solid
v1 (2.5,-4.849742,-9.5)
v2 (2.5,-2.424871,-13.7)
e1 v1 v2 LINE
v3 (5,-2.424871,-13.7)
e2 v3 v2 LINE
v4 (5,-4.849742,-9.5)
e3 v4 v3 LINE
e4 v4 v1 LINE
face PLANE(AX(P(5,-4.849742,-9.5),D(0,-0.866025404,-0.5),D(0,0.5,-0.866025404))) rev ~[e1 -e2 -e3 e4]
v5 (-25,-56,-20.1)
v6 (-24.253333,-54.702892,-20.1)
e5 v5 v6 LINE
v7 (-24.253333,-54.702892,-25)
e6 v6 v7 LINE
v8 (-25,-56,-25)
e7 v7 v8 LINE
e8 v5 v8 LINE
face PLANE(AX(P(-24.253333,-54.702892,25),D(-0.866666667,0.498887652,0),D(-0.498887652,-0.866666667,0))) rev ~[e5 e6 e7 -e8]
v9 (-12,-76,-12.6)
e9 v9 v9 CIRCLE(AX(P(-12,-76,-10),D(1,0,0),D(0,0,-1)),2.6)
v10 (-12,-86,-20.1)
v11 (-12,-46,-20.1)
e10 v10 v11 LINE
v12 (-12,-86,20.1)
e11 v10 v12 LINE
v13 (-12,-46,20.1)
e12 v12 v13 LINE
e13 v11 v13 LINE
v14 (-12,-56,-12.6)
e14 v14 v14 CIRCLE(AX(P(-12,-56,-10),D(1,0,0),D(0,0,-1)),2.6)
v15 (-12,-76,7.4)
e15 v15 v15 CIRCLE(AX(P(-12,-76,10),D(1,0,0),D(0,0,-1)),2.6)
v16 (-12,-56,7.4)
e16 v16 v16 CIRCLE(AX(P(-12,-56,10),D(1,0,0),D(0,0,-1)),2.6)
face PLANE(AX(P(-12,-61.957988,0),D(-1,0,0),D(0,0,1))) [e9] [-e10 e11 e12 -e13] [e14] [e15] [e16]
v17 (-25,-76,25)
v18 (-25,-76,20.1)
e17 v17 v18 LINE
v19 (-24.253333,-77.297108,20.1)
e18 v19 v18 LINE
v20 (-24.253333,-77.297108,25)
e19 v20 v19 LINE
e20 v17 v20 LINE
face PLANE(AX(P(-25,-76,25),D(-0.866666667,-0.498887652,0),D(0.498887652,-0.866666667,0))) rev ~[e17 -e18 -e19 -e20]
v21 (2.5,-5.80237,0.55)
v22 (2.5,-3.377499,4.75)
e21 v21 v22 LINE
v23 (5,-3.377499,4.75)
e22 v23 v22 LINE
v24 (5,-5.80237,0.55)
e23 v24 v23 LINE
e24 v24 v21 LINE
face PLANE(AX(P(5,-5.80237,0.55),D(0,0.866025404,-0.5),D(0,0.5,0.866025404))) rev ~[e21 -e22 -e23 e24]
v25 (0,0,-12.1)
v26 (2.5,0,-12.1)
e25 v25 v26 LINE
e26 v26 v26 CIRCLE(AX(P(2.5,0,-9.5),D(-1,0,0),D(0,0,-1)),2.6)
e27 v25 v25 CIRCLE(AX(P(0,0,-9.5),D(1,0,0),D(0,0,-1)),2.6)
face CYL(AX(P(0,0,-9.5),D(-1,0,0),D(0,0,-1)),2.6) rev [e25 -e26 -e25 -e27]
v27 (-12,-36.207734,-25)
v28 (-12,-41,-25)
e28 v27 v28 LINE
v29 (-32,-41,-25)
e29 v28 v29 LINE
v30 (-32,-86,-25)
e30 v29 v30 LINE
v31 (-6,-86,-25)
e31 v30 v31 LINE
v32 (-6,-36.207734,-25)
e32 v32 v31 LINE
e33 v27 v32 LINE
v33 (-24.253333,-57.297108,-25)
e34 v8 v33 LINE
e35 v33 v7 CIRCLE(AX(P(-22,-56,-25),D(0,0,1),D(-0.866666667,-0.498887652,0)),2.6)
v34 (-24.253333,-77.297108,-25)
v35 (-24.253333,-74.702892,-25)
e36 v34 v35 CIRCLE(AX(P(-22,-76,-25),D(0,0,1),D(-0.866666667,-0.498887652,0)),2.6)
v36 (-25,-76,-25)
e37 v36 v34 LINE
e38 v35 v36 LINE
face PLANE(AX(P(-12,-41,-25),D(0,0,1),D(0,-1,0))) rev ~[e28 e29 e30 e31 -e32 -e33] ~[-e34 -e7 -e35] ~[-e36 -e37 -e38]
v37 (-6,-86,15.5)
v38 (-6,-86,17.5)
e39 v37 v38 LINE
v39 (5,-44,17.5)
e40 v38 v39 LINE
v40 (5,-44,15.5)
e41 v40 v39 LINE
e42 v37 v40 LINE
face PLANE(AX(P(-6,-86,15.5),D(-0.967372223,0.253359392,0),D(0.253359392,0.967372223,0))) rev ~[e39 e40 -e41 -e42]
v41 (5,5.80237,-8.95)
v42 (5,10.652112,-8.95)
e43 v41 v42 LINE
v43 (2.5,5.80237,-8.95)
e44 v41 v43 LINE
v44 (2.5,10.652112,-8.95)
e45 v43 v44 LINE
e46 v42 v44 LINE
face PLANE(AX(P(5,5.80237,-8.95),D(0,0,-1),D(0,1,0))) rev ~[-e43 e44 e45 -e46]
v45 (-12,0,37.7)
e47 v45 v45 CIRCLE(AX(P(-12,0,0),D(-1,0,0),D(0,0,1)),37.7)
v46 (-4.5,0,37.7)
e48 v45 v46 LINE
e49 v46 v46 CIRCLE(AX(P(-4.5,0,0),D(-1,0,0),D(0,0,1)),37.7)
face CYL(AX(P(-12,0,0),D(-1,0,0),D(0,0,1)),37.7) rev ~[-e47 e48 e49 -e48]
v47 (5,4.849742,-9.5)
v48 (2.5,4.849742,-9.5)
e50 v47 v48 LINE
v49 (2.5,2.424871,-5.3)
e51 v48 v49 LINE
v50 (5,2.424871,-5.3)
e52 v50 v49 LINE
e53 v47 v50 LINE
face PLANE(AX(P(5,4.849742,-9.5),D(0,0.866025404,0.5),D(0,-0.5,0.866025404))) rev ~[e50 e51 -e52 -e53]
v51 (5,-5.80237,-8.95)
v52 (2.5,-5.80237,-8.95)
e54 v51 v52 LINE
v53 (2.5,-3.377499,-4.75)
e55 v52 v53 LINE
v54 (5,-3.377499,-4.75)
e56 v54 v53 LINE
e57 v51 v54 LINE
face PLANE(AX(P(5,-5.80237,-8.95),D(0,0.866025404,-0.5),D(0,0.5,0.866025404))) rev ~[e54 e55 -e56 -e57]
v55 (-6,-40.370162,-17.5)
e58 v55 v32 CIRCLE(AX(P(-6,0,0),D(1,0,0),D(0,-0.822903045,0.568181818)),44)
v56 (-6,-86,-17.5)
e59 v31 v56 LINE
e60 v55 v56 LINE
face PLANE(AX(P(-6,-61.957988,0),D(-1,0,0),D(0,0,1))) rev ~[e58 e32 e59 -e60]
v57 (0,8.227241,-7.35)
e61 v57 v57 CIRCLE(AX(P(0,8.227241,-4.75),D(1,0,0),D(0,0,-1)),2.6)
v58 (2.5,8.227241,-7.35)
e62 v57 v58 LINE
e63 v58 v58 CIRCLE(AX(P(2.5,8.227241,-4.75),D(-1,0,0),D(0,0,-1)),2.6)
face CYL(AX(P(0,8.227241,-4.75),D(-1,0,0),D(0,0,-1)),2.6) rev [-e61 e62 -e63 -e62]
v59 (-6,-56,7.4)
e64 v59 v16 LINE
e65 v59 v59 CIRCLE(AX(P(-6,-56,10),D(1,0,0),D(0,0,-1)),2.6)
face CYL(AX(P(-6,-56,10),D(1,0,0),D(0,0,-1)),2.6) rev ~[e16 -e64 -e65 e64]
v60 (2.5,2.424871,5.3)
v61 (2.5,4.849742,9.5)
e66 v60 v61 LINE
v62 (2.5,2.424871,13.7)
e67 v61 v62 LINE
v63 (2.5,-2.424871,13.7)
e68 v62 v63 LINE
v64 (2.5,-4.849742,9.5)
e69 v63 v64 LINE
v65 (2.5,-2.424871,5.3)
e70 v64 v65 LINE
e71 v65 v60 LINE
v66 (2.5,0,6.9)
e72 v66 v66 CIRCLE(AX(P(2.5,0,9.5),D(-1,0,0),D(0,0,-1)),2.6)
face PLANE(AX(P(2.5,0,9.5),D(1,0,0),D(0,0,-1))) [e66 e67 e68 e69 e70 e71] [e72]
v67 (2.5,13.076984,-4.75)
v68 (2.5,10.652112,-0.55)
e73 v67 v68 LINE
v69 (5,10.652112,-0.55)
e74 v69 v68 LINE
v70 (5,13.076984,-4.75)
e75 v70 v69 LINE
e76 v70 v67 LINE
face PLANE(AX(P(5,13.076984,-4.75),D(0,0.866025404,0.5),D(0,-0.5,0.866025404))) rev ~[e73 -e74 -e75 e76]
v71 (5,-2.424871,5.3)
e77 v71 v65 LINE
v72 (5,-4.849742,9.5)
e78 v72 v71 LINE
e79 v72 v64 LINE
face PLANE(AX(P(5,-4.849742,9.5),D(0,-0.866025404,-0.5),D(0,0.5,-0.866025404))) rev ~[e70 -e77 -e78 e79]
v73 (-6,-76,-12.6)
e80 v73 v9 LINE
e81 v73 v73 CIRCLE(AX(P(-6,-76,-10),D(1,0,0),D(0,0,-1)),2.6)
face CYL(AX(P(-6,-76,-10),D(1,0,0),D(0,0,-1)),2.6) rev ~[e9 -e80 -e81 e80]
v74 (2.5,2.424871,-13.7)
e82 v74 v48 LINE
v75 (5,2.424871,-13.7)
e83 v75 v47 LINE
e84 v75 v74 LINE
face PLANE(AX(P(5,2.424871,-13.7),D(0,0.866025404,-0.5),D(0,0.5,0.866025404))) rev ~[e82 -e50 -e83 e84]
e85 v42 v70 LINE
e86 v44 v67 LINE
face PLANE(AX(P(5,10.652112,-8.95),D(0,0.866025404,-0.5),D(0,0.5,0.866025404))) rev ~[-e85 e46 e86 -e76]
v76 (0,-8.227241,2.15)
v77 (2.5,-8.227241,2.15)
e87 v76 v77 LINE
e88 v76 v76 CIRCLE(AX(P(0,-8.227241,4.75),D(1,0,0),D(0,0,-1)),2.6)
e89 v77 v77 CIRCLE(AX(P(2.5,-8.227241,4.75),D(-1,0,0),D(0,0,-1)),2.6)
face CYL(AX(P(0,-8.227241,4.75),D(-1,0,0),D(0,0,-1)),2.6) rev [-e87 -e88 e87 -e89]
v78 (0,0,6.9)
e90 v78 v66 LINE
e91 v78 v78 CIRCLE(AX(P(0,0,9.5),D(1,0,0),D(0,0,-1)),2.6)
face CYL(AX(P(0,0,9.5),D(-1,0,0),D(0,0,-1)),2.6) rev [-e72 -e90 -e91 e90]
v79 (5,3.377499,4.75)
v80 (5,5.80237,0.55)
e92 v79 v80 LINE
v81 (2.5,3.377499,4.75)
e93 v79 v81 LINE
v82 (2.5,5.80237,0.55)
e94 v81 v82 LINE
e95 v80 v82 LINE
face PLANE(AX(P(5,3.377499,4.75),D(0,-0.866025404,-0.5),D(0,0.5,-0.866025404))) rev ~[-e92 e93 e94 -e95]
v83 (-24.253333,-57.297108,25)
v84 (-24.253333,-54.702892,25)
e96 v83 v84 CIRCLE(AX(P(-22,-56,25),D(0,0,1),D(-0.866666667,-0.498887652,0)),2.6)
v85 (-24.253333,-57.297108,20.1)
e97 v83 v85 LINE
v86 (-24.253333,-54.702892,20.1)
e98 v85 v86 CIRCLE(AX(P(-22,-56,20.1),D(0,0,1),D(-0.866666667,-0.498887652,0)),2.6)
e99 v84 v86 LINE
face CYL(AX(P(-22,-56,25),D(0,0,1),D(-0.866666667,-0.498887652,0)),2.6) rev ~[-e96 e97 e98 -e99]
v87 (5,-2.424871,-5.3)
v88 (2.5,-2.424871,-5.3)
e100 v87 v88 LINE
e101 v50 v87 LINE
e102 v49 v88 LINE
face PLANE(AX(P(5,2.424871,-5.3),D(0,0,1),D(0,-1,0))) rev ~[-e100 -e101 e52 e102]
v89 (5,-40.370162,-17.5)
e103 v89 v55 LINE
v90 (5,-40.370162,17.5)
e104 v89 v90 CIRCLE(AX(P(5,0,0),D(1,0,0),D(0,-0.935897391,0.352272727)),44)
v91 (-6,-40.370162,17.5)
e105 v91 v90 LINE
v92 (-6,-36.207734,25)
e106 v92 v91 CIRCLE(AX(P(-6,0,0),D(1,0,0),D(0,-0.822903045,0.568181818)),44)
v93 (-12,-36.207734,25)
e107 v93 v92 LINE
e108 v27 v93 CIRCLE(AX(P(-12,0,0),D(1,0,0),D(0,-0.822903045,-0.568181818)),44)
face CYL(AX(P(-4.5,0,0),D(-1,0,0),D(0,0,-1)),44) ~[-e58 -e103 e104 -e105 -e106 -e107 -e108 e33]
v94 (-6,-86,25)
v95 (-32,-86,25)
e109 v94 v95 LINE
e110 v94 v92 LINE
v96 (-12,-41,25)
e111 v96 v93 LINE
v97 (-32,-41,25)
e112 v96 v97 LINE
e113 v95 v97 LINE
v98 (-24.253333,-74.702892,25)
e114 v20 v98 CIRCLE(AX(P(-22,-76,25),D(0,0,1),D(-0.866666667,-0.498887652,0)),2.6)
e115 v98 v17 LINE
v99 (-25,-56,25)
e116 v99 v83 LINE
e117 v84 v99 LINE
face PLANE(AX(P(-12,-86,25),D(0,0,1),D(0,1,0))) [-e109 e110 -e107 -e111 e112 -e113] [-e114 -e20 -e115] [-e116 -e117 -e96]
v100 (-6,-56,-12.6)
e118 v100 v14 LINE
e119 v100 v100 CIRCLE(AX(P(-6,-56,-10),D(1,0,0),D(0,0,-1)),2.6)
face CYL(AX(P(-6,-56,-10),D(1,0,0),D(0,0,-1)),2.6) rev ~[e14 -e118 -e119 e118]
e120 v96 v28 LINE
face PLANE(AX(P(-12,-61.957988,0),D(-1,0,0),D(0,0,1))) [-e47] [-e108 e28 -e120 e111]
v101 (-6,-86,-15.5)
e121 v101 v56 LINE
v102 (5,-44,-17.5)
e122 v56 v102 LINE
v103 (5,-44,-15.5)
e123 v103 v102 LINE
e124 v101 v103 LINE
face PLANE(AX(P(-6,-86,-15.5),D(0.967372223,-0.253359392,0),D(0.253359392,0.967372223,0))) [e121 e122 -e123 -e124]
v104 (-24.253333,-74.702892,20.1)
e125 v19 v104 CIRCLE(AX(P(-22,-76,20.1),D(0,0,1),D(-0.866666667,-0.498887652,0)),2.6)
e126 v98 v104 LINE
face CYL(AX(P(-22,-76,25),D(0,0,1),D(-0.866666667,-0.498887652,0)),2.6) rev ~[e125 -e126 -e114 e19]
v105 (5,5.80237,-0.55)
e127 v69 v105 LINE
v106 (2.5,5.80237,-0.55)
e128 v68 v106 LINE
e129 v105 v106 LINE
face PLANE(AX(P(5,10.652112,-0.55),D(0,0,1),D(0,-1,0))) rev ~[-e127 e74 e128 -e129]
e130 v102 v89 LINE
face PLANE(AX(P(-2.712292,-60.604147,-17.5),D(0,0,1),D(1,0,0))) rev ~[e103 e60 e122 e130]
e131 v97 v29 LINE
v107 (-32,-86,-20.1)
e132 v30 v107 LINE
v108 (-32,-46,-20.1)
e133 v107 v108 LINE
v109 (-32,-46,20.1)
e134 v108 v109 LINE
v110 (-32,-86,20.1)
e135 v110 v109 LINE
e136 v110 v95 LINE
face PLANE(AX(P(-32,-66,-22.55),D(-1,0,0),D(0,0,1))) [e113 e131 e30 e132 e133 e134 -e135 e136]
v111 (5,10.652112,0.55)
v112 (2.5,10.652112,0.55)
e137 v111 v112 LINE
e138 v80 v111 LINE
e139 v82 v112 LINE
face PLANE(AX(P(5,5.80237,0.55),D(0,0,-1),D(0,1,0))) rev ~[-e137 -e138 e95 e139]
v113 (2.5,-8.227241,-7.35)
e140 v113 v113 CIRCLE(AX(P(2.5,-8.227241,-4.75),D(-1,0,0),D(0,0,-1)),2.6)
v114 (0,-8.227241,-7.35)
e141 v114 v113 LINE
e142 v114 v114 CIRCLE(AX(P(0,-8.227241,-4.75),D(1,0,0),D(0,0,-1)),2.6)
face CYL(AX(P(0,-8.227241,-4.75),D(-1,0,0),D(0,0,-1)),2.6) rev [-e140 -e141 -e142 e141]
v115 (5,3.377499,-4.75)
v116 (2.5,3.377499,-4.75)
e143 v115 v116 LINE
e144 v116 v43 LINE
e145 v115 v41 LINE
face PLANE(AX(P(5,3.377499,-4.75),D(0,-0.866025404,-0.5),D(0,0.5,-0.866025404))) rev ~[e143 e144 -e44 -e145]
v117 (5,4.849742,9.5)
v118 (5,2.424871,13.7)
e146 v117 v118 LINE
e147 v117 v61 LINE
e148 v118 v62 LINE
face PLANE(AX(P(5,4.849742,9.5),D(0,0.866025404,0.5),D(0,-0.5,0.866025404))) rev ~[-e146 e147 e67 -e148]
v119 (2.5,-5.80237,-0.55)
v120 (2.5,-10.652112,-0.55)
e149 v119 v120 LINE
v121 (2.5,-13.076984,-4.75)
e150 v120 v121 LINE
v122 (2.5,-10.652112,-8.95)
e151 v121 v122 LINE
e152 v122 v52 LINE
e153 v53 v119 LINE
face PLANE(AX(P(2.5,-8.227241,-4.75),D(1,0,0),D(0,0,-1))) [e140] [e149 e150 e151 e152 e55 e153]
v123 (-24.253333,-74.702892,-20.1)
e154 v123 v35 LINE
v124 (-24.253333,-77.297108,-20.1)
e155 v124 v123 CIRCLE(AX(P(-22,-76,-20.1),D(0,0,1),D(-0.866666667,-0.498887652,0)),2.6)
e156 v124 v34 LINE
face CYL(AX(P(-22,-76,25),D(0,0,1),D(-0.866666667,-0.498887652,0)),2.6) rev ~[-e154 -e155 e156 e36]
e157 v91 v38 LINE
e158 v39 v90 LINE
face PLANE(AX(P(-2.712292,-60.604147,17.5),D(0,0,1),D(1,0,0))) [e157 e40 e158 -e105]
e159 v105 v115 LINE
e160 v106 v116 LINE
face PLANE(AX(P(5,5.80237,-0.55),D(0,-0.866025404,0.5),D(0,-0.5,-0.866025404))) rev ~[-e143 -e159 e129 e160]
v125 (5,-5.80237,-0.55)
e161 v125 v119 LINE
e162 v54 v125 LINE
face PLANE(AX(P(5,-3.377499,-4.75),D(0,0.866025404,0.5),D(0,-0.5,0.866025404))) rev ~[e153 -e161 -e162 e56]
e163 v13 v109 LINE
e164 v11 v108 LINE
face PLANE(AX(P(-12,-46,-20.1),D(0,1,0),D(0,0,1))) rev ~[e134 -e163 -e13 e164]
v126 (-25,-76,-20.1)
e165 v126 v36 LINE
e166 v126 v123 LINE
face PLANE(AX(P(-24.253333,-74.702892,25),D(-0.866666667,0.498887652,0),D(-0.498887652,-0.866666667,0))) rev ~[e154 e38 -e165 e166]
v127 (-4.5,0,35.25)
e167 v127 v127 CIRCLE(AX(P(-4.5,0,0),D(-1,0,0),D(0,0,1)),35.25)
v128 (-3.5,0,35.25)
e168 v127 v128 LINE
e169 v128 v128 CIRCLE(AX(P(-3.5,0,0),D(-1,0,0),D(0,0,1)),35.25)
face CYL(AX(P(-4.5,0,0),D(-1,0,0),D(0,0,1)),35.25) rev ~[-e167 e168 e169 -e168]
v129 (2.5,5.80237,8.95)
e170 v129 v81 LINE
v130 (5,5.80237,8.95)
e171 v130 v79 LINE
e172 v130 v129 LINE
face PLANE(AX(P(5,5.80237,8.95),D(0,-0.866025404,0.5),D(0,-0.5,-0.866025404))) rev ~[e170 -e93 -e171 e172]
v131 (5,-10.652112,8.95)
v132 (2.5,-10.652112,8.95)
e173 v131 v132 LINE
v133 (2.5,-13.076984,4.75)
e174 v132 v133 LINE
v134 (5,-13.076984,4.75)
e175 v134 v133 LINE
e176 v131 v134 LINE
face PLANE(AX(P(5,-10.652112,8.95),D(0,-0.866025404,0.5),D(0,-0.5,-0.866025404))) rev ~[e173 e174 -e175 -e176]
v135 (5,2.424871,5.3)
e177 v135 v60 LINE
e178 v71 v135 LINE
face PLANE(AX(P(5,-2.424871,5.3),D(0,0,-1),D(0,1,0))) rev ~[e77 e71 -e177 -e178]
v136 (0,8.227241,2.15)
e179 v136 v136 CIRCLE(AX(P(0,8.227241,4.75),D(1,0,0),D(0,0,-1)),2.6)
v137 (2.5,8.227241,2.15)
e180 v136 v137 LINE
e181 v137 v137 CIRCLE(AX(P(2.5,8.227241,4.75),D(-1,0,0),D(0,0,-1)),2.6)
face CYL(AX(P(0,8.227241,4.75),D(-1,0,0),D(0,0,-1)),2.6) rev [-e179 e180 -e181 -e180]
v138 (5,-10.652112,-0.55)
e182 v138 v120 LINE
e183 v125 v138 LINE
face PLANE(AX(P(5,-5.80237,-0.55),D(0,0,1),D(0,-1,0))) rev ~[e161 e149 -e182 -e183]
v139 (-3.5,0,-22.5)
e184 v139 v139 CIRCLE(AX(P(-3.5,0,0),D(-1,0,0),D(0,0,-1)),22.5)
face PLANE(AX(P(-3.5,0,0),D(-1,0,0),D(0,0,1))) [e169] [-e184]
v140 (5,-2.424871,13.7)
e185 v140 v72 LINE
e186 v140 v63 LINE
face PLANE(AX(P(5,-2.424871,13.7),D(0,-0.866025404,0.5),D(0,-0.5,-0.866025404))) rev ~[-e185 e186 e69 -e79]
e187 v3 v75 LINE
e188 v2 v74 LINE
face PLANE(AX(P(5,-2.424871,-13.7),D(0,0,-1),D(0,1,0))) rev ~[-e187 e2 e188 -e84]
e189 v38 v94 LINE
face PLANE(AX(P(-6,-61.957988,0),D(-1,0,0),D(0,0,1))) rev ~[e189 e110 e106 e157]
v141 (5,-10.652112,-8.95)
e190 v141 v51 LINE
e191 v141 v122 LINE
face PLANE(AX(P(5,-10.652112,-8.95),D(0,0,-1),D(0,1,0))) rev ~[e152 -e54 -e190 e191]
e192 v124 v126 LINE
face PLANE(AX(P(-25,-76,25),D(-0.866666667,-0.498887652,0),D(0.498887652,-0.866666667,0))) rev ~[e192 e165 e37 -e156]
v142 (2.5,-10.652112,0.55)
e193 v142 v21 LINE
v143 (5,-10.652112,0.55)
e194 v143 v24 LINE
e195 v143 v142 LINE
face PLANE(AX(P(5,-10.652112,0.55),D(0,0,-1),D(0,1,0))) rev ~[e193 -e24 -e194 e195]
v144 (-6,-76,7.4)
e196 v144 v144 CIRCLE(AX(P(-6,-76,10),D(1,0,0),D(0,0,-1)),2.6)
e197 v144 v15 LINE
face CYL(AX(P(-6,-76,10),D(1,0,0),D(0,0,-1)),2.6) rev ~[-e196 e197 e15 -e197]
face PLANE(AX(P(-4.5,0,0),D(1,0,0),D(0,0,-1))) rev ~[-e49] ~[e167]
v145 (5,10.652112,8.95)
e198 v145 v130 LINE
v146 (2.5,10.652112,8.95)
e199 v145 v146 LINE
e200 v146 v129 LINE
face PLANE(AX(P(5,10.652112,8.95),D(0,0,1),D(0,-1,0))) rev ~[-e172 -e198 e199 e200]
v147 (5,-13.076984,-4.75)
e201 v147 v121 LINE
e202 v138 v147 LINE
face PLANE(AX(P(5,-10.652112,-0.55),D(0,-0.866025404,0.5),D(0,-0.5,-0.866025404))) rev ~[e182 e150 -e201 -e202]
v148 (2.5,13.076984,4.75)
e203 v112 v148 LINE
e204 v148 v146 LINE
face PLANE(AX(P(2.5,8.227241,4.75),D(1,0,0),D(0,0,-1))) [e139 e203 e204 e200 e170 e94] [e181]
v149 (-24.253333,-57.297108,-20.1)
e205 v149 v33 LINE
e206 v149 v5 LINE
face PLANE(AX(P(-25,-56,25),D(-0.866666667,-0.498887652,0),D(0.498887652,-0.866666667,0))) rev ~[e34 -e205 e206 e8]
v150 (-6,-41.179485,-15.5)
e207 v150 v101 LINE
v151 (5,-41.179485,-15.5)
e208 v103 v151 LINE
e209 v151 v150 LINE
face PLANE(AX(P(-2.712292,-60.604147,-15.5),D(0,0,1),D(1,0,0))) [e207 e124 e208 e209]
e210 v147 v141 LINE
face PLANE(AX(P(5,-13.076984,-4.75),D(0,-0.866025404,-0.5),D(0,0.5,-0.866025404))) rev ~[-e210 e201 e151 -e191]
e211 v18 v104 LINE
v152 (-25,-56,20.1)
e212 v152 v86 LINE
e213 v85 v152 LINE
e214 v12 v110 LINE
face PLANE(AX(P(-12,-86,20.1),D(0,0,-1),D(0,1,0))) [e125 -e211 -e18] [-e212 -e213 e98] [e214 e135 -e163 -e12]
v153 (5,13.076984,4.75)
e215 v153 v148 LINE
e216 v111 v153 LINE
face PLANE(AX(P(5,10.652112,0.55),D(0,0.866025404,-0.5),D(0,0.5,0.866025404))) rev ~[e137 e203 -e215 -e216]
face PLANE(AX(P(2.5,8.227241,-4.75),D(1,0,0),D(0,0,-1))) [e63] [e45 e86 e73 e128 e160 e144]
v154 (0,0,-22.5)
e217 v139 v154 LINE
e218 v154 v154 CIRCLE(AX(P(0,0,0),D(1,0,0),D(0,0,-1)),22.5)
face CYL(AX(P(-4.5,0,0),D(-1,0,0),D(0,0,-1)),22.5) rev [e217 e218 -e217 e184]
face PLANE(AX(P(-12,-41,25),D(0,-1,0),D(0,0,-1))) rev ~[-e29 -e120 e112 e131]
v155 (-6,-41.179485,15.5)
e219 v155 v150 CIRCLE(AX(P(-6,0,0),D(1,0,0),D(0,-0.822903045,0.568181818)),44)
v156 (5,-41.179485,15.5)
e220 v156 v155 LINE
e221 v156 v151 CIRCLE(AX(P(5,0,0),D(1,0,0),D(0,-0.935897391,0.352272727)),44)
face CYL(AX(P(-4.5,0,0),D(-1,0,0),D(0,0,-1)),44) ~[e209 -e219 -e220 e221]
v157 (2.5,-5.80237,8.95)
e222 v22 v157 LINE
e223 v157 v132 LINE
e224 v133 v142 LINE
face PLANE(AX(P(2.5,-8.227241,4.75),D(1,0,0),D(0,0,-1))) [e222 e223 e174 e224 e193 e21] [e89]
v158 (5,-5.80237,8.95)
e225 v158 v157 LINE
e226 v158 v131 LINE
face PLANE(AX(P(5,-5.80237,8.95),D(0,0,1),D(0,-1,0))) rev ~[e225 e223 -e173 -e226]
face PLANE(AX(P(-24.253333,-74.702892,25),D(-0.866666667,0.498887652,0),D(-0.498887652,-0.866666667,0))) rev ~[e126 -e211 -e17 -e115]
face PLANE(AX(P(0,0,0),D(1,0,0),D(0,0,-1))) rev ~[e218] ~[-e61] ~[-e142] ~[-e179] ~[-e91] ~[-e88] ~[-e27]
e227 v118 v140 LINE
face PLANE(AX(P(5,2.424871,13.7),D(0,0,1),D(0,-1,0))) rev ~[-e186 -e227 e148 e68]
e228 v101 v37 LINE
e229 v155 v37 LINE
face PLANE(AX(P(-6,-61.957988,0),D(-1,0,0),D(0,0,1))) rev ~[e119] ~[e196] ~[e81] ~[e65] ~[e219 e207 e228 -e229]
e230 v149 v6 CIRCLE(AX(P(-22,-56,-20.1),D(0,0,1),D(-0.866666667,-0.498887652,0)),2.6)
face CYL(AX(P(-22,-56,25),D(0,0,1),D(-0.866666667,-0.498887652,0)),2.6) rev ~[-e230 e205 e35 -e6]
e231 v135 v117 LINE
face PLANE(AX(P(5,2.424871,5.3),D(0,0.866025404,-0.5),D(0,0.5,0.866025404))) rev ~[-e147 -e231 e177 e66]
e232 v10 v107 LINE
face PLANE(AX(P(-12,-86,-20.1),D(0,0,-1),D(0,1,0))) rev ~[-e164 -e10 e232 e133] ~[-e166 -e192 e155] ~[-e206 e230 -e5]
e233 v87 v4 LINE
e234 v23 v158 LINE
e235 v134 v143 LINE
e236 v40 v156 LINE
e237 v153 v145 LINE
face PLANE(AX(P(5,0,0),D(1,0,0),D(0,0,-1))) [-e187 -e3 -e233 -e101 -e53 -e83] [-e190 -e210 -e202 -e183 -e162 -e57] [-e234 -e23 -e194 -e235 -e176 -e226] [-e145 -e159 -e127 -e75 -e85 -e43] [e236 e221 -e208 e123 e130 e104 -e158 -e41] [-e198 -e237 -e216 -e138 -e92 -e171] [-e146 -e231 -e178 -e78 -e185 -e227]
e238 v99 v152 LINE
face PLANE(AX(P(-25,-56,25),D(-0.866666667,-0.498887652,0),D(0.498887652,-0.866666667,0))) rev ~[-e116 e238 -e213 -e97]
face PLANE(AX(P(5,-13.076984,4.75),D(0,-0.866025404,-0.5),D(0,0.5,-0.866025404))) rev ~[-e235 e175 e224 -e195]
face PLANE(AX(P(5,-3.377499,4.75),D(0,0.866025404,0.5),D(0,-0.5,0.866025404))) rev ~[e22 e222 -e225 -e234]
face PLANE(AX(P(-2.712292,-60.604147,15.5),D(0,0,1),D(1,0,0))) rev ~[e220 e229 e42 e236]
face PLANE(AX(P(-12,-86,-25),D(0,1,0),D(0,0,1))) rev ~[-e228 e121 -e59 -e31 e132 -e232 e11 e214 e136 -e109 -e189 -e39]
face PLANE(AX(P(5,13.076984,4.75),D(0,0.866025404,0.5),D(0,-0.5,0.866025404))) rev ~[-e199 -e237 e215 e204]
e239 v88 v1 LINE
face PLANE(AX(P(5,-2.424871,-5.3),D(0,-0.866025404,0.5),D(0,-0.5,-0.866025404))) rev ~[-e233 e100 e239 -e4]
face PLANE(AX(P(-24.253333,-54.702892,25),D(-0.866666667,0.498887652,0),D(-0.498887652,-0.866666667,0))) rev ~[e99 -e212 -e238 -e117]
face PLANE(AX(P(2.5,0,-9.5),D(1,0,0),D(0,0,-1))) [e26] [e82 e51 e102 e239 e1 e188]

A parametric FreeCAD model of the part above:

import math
import FreeCAD as App
import Part
import Sketcher
Q = App.Units.Quantity

doc = App.newDocument("Part")
body = doc.addObject("PartDesign::Body", "Body")

# Sketch on YZ plane
sketch1 = body.newObject("Sketcher::SketchObject", "Sketch")
sketch1.AttachmentSupport = (doc.getObject("YZ_Plane"), [""])
sketch1.MapMode = "FlatFace"
sketch1.addGeometry([
    Part.Circle(App.Vector(0, 0, 0), App.Vector(0, 0, 1), 44),  # 0
    Part.Circle(App.Vector(-8.2, 4.8, 0), App.Vector(0, 0, 1), 2.6),  # 1
    Part.Circle(App.Vector(-8.2, -4.8, 0), App.Vector(0, 0, 1), 2.6),  # 2
    Part.Circle(App.Vector(0, 9.5, 0), App.Vector(0, 0, 1), 2.6),  # 3
    Part.Circle(App.Vector(8.2, 4.8, 0), App.Vector(0, 0, 1), 2.6),  # 4
    Part.Circle(App.Vector(0, -9.5, 0), App.Vector(0, 0, 1), 2.6),  # 5
    Part.Circle(App.Vector(8.2, -4.8, 0), App.Vector(0, 0, 1), 2.6),  # 6
], False)
sketch1.addConstraint([
    Sketcher.Constraint("Coincident", 0, 3, -1, 1),
    Sketcher.Constraint("Equal", 1, 2),
    Sketcher.Constraint("Equal", 2, 3),
    Sketcher.Constraint("Equal", 3, 4),
    Sketcher.Constraint("Equal", 4, 5),
    Sketcher.Constraint("Equal", 5, 6),
    Sketcher.Constraint("Symmetric", 2, 3, 4, 3, -1, 1),
    Sketcher.Constraint("Symmetric", 3, 3, 5, 3, -1, 1),
    Sketcher.Constraint("Symmetric", 1, 3, 6, 3, -1, 1),
    Sketcher.Constraint("Symmetric", 1, 3, 4, 3, -2),
    Sketcher.Constraint("PointOnObject", 3, 3, -2),
    Sketcher.Constraint("Diameter", 0, Q("88 mm")),
    Sketcher.Constraint("Diameter", 1, Q("5.2 mm")),
    Sketcher.Constraint("DistanceY", 5, 3, 3, 3, Q("19 mm")),
    Sketcher.Constraint("DistanceY", 2, 3, 1, 3, Q("9.5 mm")),
    Sketcher.Constraint("DistanceX", 1, 3, -1, 1, Q("8.227241 mm")),
])
pad1 = body.newObject("PartDesign::Pad", "Pad")
pad1.Profile = sketch1
pad1.Length = 5

# Sketch on YZ plane
sketch2 = body.newObject("Sketcher::SketchObject", "Sketch001")
sketch2.AttachmentSupport = (doc.getObject("YZ_Plane"), [""])
sketch2.MapMode = "FlatFace"
sketch2.AttachmentOffset = App.Placement(App.Vector(0, 0, -4.5), App.Rotation())
sketch2.addGeometry([
    Part.Circle(App.Vector(0, 0, 0), App.Vector(0, 0, 1), 44),
    Part.Circle(App.Vector(0, 0, 0), App.Vector(0, 0, 1), 22),
], False)
sketch2.addConstraint([
    Sketcher.Constraint("Coincident", 0, 3, -1, 1),
    Sketcher.Constraint("Coincident", 1, 3, -1, 1),
    Sketcher.Constraint("Diameter", 0, Q("88 mm")),
    Sketcher.Constraint("Diameter", 1, Q("45 mm")),
])
pad2 = body.newObject("PartDesign::Pad", "Pad001")
pad2.Profile = sketch2
pad2.Length = 4.5

# Sketch on YZ plane
sketch3 = body.newObject("Sketcher::SketchObject", "Sketch002")
sketch3.AttachmentSupport = (doc.getObject("YZ_Plane"), [""])
sketch3.MapMode = "FlatFace"
sketch3.AttachmentOffset = App.Placement(App.Vector(0, 0, -12), App.Rotation())
sketch3.addGeometry([
    Part.Circle(App.Vector(0, 0, 0), App.Vector(0, 0, 1), 44),
    Part.Circle(App.Vector(0, 0, 0), App.Vector(0, 0, 1), 38),
], False)
sketch3.addConstraint([
    Sketcher.Constraint("Coincident", 0, 3, -1, 1),
    Sketcher.Constraint("Coincident", 1, 3, -1, 1),
    Sketcher.Constraint("Diameter", 0, Q("88 mm")),
    Sketcher.Constraint("Diameter", 1, Q("75.4 mm")),
])
pad3 = body.newObject("PartDesign::Pad", "Pad002")
pad3.Profile = sketch3
pad3.Length = 7.5

# Sketch on YZ plane
sketch4 = body.newObject("Sketcher::SketchObject", "Sketch003")
sketch4.AttachmentSupport = (doc.getObject("YZ_Plane"), [""])
sketch4.MapMode = "FlatFace"
sketch4.AttachmentOffset = App.Placement(App.Vector(0, 0, -12), App.Rotation())
sketch4.addGeometry([
    Part.LineSegment(App.Vector(-86, -25, 0), App.Vector(-86, 25, 0)),
    Part.LineSegment(App.Vector(-86, 25, 0), App.Vector(-36, 25, 0)),
    Part.ArcOfCircle(Part.Circle(App.Vector(0, 0, 0), App.Vector(0, 0, 1), 44), math.radians(145), math.radians(215)),
    Part.LineSegment(App.Vector(-36, -25, 0), App.Vector(-86, -25, 0)),
], False)
sketch4.addConstraint([
    Sketcher.Constraint("Coincident", 0, 2, 1, 1),
    Sketcher.Constraint("Coincident", 1, 2, 2, 1),
    Sketcher.Constraint("Coincident", 2, 2, 3, 1),
    Sketcher.Constraint("Coincident", 3, 2, 0, 1),
    Sketcher.Constraint("Vertical", 0),
    Sketcher.Constraint("Horizontal", 1),
    Sketcher.Constraint("Horizontal", 3),
    Sketcher.Constraint("Coincident", 2, 3, -1, 1),
    Sketcher.Constraint("Vertical", 1, 2, 2, 2),
    Sketcher.Constraint("Radius", 2, Q("44 mm")),
    Sketcher.Constraint("DistanceY", 0, 1, 0, 2, Q("50 mm")),
    Sketcher.Constraint("DistanceX", 0, 2, -1, 1, Q("86 mm")),
])
pad4 = body.newObject("PartDesign::Pad", "Pad003")
pad4.Profile = sketch4
pad4.Length = 6

# Sketch on YZ plane
sketch5 = body.newObject("Sketcher::SketchObject", "Sketch004")
sketch5.AttachmentSupport = (doc.getObject("YZ_Plane"), [""])
sketch5.MapMode = "FlatFace"
sketch5.AttachmentOffset = App.Placement(App.Vector(0, 0, -4.5), App.Rotation())
sketch5.addGeometry(Part.Circle(App.Vector(0, 0, 0), App.Vector(0, 0, 1), 35), False)
sketch5.addConstraint([
    Sketcher.Constraint("Coincident", 0, 3, -1, 1),
    Sketcher.Constraint("Diameter", 0, Q("70.5 mm")),
])
pocket1 = body.newObject("PartDesign::Pocket", "Pocket")
pocket1.Profile = sketch5
pocket1.Length = 1
pocket1.Reversed = True

# Sketch on YZ plane
sketch6 = body.newObject("Sketcher::SketchObject", "Sketch005")
sketch6.AttachmentSupport = (doc.getObject("YZ_Plane"), [""])
sketch6.MapMode = "FlatFace"
sketch6.AttachmentOffset = App.Placement(App.Vector(0, 0, -12), App.Rotation())
sketch6.addGeometry([
    Part.LineSegment(App.Vector(-86, -25, 0), App.Vector(-86, -20.1, 0)),  # 0
    Part.LineSegment(App.Vector(-86, -20.1, 0), App.Vector(-46, -20.1, 0)),  # 1
    Part.LineSegment(App.Vector(-46, -20.1, 0), App.Vector(-46, 20.1, 0)),  # 2
    Part.LineSegment(App.Vector(-46, 20.1, 0), App.Vector(-86, 20.1, 0)),  # 3
    Part.LineSegment(App.Vector(-86, 20.1, 0), App.Vector(-86, 25, 0)),  # 4
    Part.LineSegment(App.Vector(-86, 25, 0), App.Vector(-41, 25, 0)),  # 5
    Part.LineSegment(App.Vector(-41, 25, 0), App.Vector(-41, -25, 0)),  # 6
    Part.LineSegment(App.Vector(-41, -25, 0), App.Vector(-86, -25, 0)),  # 7
], False)
sketch6.addConstraint([
    Sketcher.Constraint("Coincident", 0, 2, 1, 1),
    Sketcher.Constraint("Coincident", 1, 2, 2, 1),
    Sketcher.Constraint("Coincident", 2, 2, 3, 1),
    Sketcher.Constraint("Coincident", 3, 2, 4, 1),
    Sketcher.Constraint("Coincident", 4, 2, 5, 1),
    Sketcher.Constraint("Coincident", 5, 2, 6, 1),
    Sketcher.Constraint("Coincident", 6, 2, 7, 1),
    Sketcher.Constraint("Coincident", 7, 2, 0, 1),
    Sketcher.Constraint("Vertical", 0),
    Sketcher.Constraint("Horizontal", 1),
    Sketcher.Constraint("Vertical", 2),
    Sketcher.Constraint("Horizontal", 3),
    Sketcher.Constraint("Vertical", 4),
    Sketcher.Constraint("Horizontal", 5),
    Sketcher.Constraint("Vertical", 6),
    Sketcher.Constraint("Horizontal", 7),
    Sketcher.Constraint("Symmetric", 0, 2, 3, 2, -1),
    Sketcher.Constraint("Equal", 0, 4),
    Sketcher.Constraint("DistanceX", 1, 1, 1, 2, Q("40 mm")),
    Sketcher.Constraint("DistanceX", 5, 1, 5, 2, Q("45 mm")),
    Sketcher.Constraint("DistanceY", 6, 2, 6, 1, Q("50 mm")),
    Sketcher.Constraint("DistanceY", 0, 1, 0, 2, Q("4.9 mm")),
    Sketcher.Constraint("DistanceX", 0, 2, -1, 1, Q("86 mm")),
])
pad5 = body.newObject("PartDesign::Pad", "Pad004")
pad5.Profile = sketch6
pad5.Length = 20
pad5.Reversed = True

# Sketch on XY plane
sketch7 = body.newObject("Sketcher::SketchObject", "Sketch006")
sketch7.AttachmentSupport = (doc.getObject("XY_Plane"), [""])
sketch7.MapMode = "FlatFace"
sketch7.AttachmentOffset = App.Placement(App.Vector(0, 0, 16.5), App.Rotation())
sketch7.addGeometry([
    Part.LineSegment(App.Vector(5, -40, 0), App.Vector(-6, -40, 0)),
    Part.LineSegment(App.Vector(-6, -40, 0), App.Vector(-6, -86, 0)),
    Part.LineSegment(App.Vector(-6, -86, 0), App.Vector(5, -44, 0)),
    Part.LineSegment(App.Vector(5, -44, 0), App.Vector(5, -40, 0)),
], False)
sketch7.addConstraint([
    Sketcher.Constraint("Coincident", 0, 2, 1, 1),
    Sketcher.Constraint("Coincident", 1, 2, 2, 1),
    Sketcher.Constraint("Coincident", 2, 2, 3, 1),
    Sketcher.Constraint("Coincident", 3, 2, 0, 1),
    Sketcher.Constraint("Horizontal", 0),
    Sketcher.Constraint("Vertical", 1),
    Sketcher.Constraint("Vertical", 3),
    Sketcher.Constraint("DistanceX", 0, 2, 0, 1, Q("11 mm")),
    Sketcher.Constraint("DistanceY", 1, 2, 1, 1, Q("46 mm")),
    Sketcher.Constraint("DistanceY", 3, 1, 3, 2, Q("4 mm")),
    Sketcher.Constraint("DistanceX", 0, 2, -1, 1, Q("6 mm")),
    Sketcher.Constraint("DistanceY", 0, 2, -1, 1, Q("40 mm")),
])
pad6 = body.newObject("PartDesign::Pad", "Pad005")
pad6.Profile = sketch7
pad6.Type = "TwoLengths"
pad6.Length = 1
pad6.Length2 = 1

# Sketch on XY plane
sketch8 = body.newObject("Sketcher::SketchObject", "Sketch007")
sketch8.AttachmentSupport = (doc.getObject("XY_Plane"), [""])
sketch8.MapMode = "FlatFace"
sketch8.AttachmentOffset = App.Placement(App.Vector(0, 0, -16.5), App.Rotation())
sketch8.addGeometry([
    Part.LineSegment(App.Vector(-6, -40, 0), App.Vector(5, -40, 0)),
    Part.LineSegment(App.Vector(5, -40, 0), App.Vector(5, -44, 0)),
    Part.LineSegment(App.Vector(5, -44, 0), App.Vector(-6, -86, 0)),
    Part.LineSegment(App.Vector(-6, -86, 0), App.Vector(-6, -40, 0)),
], False)
sketch8.addConstraint([
    Sketcher.Constraint("Coincident", 0, 2, 1, 1),
    Sketcher.Constraint("Coincident", 1, 2, 2, 1),
    Sketcher.Constraint("Coincident", 2, 2, 3, 1),
    Sketcher.Constraint("Coincident", 3, 2, 0, 1),
    Sketcher.Constraint("Horizontal", 0),
    Sketcher.Constraint("Vertical", 1),
    Sketcher.Constraint("Vertical", 3),
    Sketcher.Constraint("DistanceX", 0, 1, 0, 2, Q("11 mm")),
    Sketcher.Constraint("DistanceY", 1, 2, 1, 1, Q("4 mm")),
    Sketcher.Constraint("DistanceY", 3, 1, 3, 2, Q("46 mm")),
    Sketcher.Constraint("DistanceX", -1, 1, 0, 2, Q("5 mm")),
    Sketcher.Constraint("DistanceY", 0, 2, -1, 1, Q("40 mm")),
])
pad7 = body.newObject("PartDesign::Pad", "Pad006")
pad7.Profile = sketch8
pad7.Type = "TwoLengths"
pad7.Length = 1
pad7.Length2 = 1
pad7.Reversed = True

# Sketch on YZ plane
sketch9 = body.newObject("Sketcher::SketchObject", "Sketch008")
sketch9.AttachmentSupport = (doc.getObject("YZ_Plane"), [""])
sketch9.MapMode = "FlatFace"
sketch9.AttachmentOffset = App.Placement(App.Vector(0, 0, -6), App.Rotation())
sketch9.addGeometry([
    Part.Circle(App.Vector(-76, 10, 0), App.Vector(0, 0, 1), 2.6),
    Part.Circle(App.Vector(-76, -10, 0), App.Vector(0, 0, 1), 2.6),
    Part.Circle(App.Vector(-56, 10, 0), App.Vector(0, 0, 1), 2.6),
    Part.Circle(App.Vector(-56, -10, 0), App.Vector(0, 0, 1), 2.6),
], False)
sketch9.addConstraint([
    Sketcher.Constraint("Equal", 0, 1),
    Sketcher.Constraint("Equal", 1, 2),
    Sketcher.Constraint("Equal", 2, 3),
    Sketcher.Constraint("Symmetric", 0, 3, 1, 3, -1),
    Sketcher.Constraint("Symmetric", 2, 3, 3, 3, -1),
    Sketcher.Constraint("Horizontal", 0, 3, 2, 3),
    Sketcher.Constraint("Diameter", 0, Q("5.2 mm")),
    Sketcher.Constraint("DistanceX", 0, 3, -1, 1, Q("76 mm")),
    Sketcher.Constraint("DistanceY", -1, 1, 0, 3, Q("10 mm")),
    Sketcher.Constraint("DistanceX", 2, 3, -1, 1, Q("56 mm")),
])
pocket2 = body.newObject("PartDesign::Pocket", "Pocket001")
pocket2.Profile = sketch9
pocket2.Type = "ThroughAll"

# Sketch on XY plane
sketch10 = body.newObject("Sketcher::SketchObject", "Sketch009")
sketch10.AttachmentSupport = (doc.getObject("XY_Plane"), [""])
sketch10.MapMode = "FlatFace"
sketch10.AttachmentOffset = App.Placement(App.Vector(0, 0, 25), App.Rotation())
sketch10.addGeometry([
    Part.LineSegment(App.Vector(-24.3, -54.7, 0), App.Vector(-25, -56, 0)),  # 0
    Part.LineSegment(App.Vector(-25, -56, 0), App.Vector(-24.3, -57.3, 0)),  # 1
    Part.ArcOfCircle(Part.Circle(App.Vector(-22, -56, 0), App.Vector(0, 0, 1), 2.6), math.radians(-150), math.radians(150)),  # 2
    Part.LineSegment(App.Vector(-24.3, -74.7, 0), App.Vector(-25, -76, 0)),  # 3
    Part.LineSegment(App.Vector(-25, -76, 0), App.Vector(-24.3, -77.3, 0)),  # 4
    Part.ArcOfCircle(Part.Circle(App.Vector(-22, -76, 0), App.Vector(0, 0, 1), 2.6), math.radians(-150), math.radians(150)),  # 5
], False)
sketch10.addConstraint([
    Sketcher.Constraint("Coincident", 0, 2, 1, 1),
    Sketcher.Constraint("Tangent", 1, 2, 2, 1),
    Sketcher.Constraint("Tangent", 2, 2, 0, 1),
    Sketcher.Constraint("Coincident", 3, 2, 4, 1),
    Sketcher.Constraint("Tangent", 4, 2, 5, 1),
    Sketcher.Constraint("Tangent", 5, 2, 3, 1),
    Sketcher.Constraint("Equal", 2, 5),
    Sketcher.Constraint("Parallel", 0, 3),
    Sketcher.Constraint("Parallel", 1, 4),
    Sketcher.Constraint("Horizontal", 2, 3, 0, 2),
    Sketcher.Constraint("Vertical", 2, 3, 5, 3),
    Sketcher.Constraint("Radius", 2, Q("2.6 mm")),
    Sketcher.Constraint("DistanceX", 2, 3, -1, 1, Q("22 mm")),
    Sketcher.Constraint("DistanceY", 2, 3, -1, 1, Q("56 mm")),
    Sketcher.Constraint("DistanceY", 5, 3, -1, 1, Q("76 mm")),
    Sketcher.Constraint("DistanceX", 0, 2, -1, 1, Q("25 mm")),
])
pocket3 = body.newObject("PartDesign::Pocket", "Pocket002")
pocket3.Profile = sketch10
pocket3.Type = "ThroughAll"

# Sketch on YZ plane
sketch11 = body.newObject("Sketcher::SketchObject", "Sketch010")
sketch11.AttachmentSupport = (doc.getObject("YZ_Plane"), [""])
sketch11.MapMode = "FlatFace"
sketch11.AttachmentOffset = App.Placement(App.Vector(0, 0, 5), App.Rotation())
sketch11.addGeometry([
    Part.LineSegment(App.Vector(-4.8, -9.5, 0), App.Vector(-2.4, -13.7, 0)),  # 0
    Part.LineSegment(App.Vector(-2.4, -13.7, 0), App.Vector(2.4, -13.7, 0)),  # 1
    Part.LineSegment(App.Vector(2.4, -13.7, 0), App.Vector(4.8, -9.5, 0)),  # 2
    Part.LineSegment(App.Vector(4.8, -9.5, 0), App.Vector(2.4, -5.3, 0)),  # 3
    Part.LineSegment(App.Vector(2.4, -5.3, 0), App.Vector(-2.4, -5.3, 0)),  # 4
    Part.LineSegment(App.Vector(-2.4, -5.3, 0), App.Vector(-4.8, -9.5, 0)),  # 5
    Part.LineSegment(App.Vector(5.8, -8.9, 0), App.Vector(10.7, -8.9, 0)),  # 6
    Part.LineSegment(App.Vector(10.7, -8.9, 0), App.Vector(13.1, -4.8, 0)),  # 7
    Part.LineSegment(App.Vector(13.1, -4.8, 0), App.Vector(10.7, -0.6, 0)),  # 8
    Part.LineSegment(App.Vector(10.7, -0.6, 0), App.Vector(5.8, -0.6, 0)),  # 9
    Part.LineSegment(App.Vector(5.8, -0.6, 0), App.Vector(3.4, -4.8, 0)),  # 10
    Part.LineSegment(App.Vector(3.4, -4.8, 0), App.Vector(5.8, -8.9, 0)),  # 11
    Part.LineSegment(App.Vector(-10.7, -0.6, 0), App.Vector(-13.1, -4.8, 0)),  # 12
    Part.LineSegment(App.Vector(-13.1, -4.8, 0), App.Vector(-10.7, -8.9, 0)),  # 13
    Part.LineSegment(App.Vector(-10.7, -8.9, 0), App.Vector(-5.8, -8.9, 0)),  # 14
    Part.LineSegment(App.Vector(-5.8, -8.9, 0), App.Vector(-3.4, -4.8, 0)),  # 15
    Part.LineSegment(App.Vector(-3.4, -4.8, 0), App.Vector(-5.8, -0.6, 0)),  # 16
    Part.LineSegment(App.Vector(-5.8, -0.6, 0), App.Vector(-10.7, -0.6, 0)),  # 17
    Part.LineSegment(App.Vector(-5.8, 8.9, 0), App.Vector(-10.7, 8.9, 0)),  # 18
    Part.LineSegment(App.Vector(-10.7, 8.9, 0), App.Vector(-13.1, 4.8, 0)),  # 19
    Part.LineSegment(App.Vector(-13.1, 4.8, 0), App.Vector(-10.7, 0.6, 0)),  # 20
    Part.LineSegment(App.Vector(-10.7, 0.6, 0), App.Vector(-5.8, 0.6, 0)),  # 21
    Part.LineSegment(App.Vector(-5.8, 0.6, 0), App.Vector(-3.4, 4.8, 0)),  # 22
    Part.LineSegment(App.Vector(-3.4, 4.8, 0), App.Vector(-5.8, 8.9, 0)),  # 23
    Part.LineSegment(App.Vector(4.8, 9.5, 0), App.Vector(2.4, 13.7, 0)),  # 24
    Part.LineSegment(App.Vector(2.4, 13.7, 0), App.Vector(-2.4, 13.7, 0)),  # 25
    Part.LineSegment(App.Vector(-2.4, 13.7, 0), App.Vector(-4.8, 9.5, 0)),  # 26
    Part.LineSegment(App.Vector(-4.8, 9.5, 0), App.Vector(-2.4, 5.3, 0)),  # 27
    Part.LineSegment(App.Vector(-2.4, 5.3, 0), App.Vector(2.4, 5.3, 0)),  # 28
    Part.LineSegment(App.Vector(2.4, 5.3, 0), App.Vector(4.8, 9.5, 0)),  # 29
    Part.LineSegment(App.Vector(10.7, 0.6, 0), App.Vector(13.1, 4.8, 0)),  # 30
    Part.LineSegment(App.Vector(13.1, 4.8, 0), App.Vector(10.7, 8.9, 0)),  # 31
    Part.LineSegment(App.Vector(10.7, 8.9, 0), App.Vector(5.8, 8.9, 0)),  # 32
    Part.LineSegment(App.Vector(5.8, 8.9, 0), App.Vector(3.4, 4.8, 0)),  # 33
    Part.LineSegment(App.Vector(3.4, 4.8, 0), App.Vector(5.8, 0.6, 0)),  # 34
    Part.LineSegment(App.Vector(5.8, 0.6, 0), App.Vector(10.7, 0.6, 0)),  # 35
], False)
sketch11.addConstraint([
    Sketcher.Constraint("Coincident", 0, 2, 1, 1),
    Sketcher.Constraint("Coincident", 1, 2, 2, 1),
    Sketcher.Constraint("Coincident", 2, 2, 3, 1),
    Sketcher.Constraint("Coincident", 3, 2, 4, 1),
    Sketcher.Constraint("Coincident", 4, 2, 5, 1),
    Sketcher.Constraint("Coincident", 5, 2, 0, 1),
    Sketcher.Constraint("Coincident", 6, 2, 7, 1),
    Sketcher.Constraint("Coincident", 7, 2, 8, 1),
    Sketcher.Constraint("Coincident", 8, 2, 9, 1),
    Sketcher.Constraint("Coincident", 9, 2, 10, 1),
    Sketcher.Constraint("Coincident", 10, 2, 11, 1),
    Sketcher.Constraint("Coincident", 11, 2, 6, 1),
    Sketcher.Constraint("Coincident", 12, 2, 13, 1),
    Sketcher.Constraint("Coincident", 13, 2, 14, 1),
    Sketcher.Constraint("Coincident", 14, 2, 15, 1),
    Sketcher.Constraint("Coincident", 15, 2, 16, 1),
    Sketcher.Constraint("Coincident", 16, 2, 17, 1),
    Sketcher.Constraint("Coincident", 17, 2, 12, 1),
    Sketcher.Constraint("Coincident", 18, 2, 19, 1),
    Sketcher.Constraint("Coincident", 19, 2, 20, 1),
    Sketcher.Constraint("Coincident", 20, 2, 21, 1),
    Sketcher.Constraint("Coincident", 21, 2, 22, 1),
    Sketcher.Constraint("Coincident", 22, 2, 23, 1),
    Sketcher.Constraint("Coincident", 23, 2, 18, 1),
    Sketcher.Constraint("Coincident", 24, 2, 25, 1),
    Sketcher.Constraint("Coincident", 25, 2, 26, 1),
    Sketcher.Constraint("Coincident", 26, 2, 27, 1),
    Sketcher.Constraint("Coincident", 27, 2, 28, 1),
    Sketcher.Constraint("Coincident", 28, 2, 29, 1),
    Sketcher.Constraint("Coincident", 29, 2, 24, 1),
    Sketcher.Constraint("Coincident", 30, 2, 31, 1),
    Sketcher.Constraint("Coincident", 31, 2, 32, 1),
    Sketcher.Constraint("Coincident", 32, 2, 33, 1),
    Sketcher.Constraint("Coincident", 33, 2, 34, 1),
    Sketcher.Constraint("Coincident", 34, 2, 35, 1),
    Sketcher.Constraint("Coincident", 35, 2, 30, 1),
    Sketcher.Constraint("Horizontal", 1),
    Sketcher.Constraint("Horizontal", 4),
    Sketcher.Constraint("Horizontal", 6),
    Sketcher.Constraint("Horizontal", 9),
    Sketcher.Constraint("Horizontal", 14),
    Sketcher.Constraint("Horizontal", 17),
    Sketcher.Constraint("Horizontal", 18),
    Sketcher.Constraint("Horizontal", 21),
    Sketcher.Constraint("Horizontal", 25),
    Sketcher.Constraint("Horizontal", 28),
    Sketcher.Constraint("Horizontal", 32),
    Sketcher.Constraint("Horizontal", 35),
    Sketcher.Constraint("Symmetric", 6, 2, 18, 2, -1, 1),
    Sketcher.Constraint("Symmetric", 7, 2, 19, 2, -1, 1),
    Sketcher.Constraint("Symmetric", 8, 2, 20, 2, -1, 1),
    Sketcher.Constraint("Symmetric", 10, 2, 22, 2, -1, 1),
    Sketcher.Constraint("Symmetric", 0, 2, 24, 2, -1, 1),
    Sketcher.Constraint("Symmetric", 2, 2, 26, 2, -1, 1),
    Sketcher.Constraint("Symmetric", 3, 2, 27, 2, -1, 1),
    Sketcher.Constraint("Symmetric", 5, 2, 29, 2, -1, 1),
    Sketcher.Constraint("Symmetric", 12, 2, 30, 2, -1, 1),
    Sketcher.Constraint("Symmetric", 13, 2, 31, 2, -1, 1),
    Sketcher.Constraint("Symmetric", 15, 2, 33, 2, -1, 1),
    Sketcher.Constraint("Symmetric", 16, 2, 34, 2, -1, 1),
    Sketcher.Constraint("Symmetric", 2, 2, 5, 2, -2),
    Sketcher.Constraint("Symmetric", 7, 2, 12, 2, -2),
    Sketcher.Constraint("Symmetric", 6, 2, 13, 2, -2),
    Sketcher.Constraint("Symmetric", 10, 2, 15, 2, -2),
    Sketcher.Constraint("Symmetric", 9, 2, 16, 2, -2),
    Sketcher.Constraint("Parallel", 0, 3),
    Sketcher.Constraint("Parallel", 2, 5),
    Sketcher.Constraint("Parallel", 5, 7),
    Sketcher.Constraint("Parallel", 3, 8),
    Sketcher.Constraint("Parallel", 7, 10),
    Sketcher.Constraint("Parallel", 8, 11),
    Sketcher.Constraint("Parallel", 10, 12),
    Sketcher.Constraint("Parallel", 11, 13),
    Sketcher.Constraint("Parallel", 12, 15),
    Sketcher.Constraint("Parallel", 19, 22),
    Sketcher.Constraint("Parallel", 20, 23),
    Sketcher.Constraint("Parallel", 22, 26),
    Sketcher.Constraint("Parallel", 26, 29),
    Sketcher.Constraint("Parallel", 29, 30),
    Sketcher.Constraint("Parallel", 30, 33),
    Sketcher.Constraint("Horizontal", 7, 2, 10, 2),
    Sketcher.Constraint("Vertical", 1, 2, 3, 2),
    Sketcher.Constraint("Vertical", 6, 2, 8, 2),
    Sketcher.Constraint("Equal", 4, 6),
    Sketcher.Constraint("Equal", 5, 7),
    Sketcher.Constraint("Angle", 0, Q("-60 deg")),
    Sketcher.Constraint("DistanceY", 0, 2, -1, 1, Q("13.7 mm")),
    Sketcher.Constraint("DistanceY", 2, 2, -1, 1, Q("9.5 mm")),
    Sketcher.Constraint("DistanceY", 17, 2, 18, 2, Q("9.5 mm")),
    Sketcher.Constraint("DistanceX", 15, 2, 10, 2, Q("6.754998 mm")),
    Sketcher.Constraint("DistanceX", 3, 2, 9, 2, Q("3.377499 mm")),
])
pocket4 = body.newObject("PartDesign::Pocket", "Pocket003")
pocket4.Profile = sketch11
pocket4.Length = 2.5

doc.recompute()
